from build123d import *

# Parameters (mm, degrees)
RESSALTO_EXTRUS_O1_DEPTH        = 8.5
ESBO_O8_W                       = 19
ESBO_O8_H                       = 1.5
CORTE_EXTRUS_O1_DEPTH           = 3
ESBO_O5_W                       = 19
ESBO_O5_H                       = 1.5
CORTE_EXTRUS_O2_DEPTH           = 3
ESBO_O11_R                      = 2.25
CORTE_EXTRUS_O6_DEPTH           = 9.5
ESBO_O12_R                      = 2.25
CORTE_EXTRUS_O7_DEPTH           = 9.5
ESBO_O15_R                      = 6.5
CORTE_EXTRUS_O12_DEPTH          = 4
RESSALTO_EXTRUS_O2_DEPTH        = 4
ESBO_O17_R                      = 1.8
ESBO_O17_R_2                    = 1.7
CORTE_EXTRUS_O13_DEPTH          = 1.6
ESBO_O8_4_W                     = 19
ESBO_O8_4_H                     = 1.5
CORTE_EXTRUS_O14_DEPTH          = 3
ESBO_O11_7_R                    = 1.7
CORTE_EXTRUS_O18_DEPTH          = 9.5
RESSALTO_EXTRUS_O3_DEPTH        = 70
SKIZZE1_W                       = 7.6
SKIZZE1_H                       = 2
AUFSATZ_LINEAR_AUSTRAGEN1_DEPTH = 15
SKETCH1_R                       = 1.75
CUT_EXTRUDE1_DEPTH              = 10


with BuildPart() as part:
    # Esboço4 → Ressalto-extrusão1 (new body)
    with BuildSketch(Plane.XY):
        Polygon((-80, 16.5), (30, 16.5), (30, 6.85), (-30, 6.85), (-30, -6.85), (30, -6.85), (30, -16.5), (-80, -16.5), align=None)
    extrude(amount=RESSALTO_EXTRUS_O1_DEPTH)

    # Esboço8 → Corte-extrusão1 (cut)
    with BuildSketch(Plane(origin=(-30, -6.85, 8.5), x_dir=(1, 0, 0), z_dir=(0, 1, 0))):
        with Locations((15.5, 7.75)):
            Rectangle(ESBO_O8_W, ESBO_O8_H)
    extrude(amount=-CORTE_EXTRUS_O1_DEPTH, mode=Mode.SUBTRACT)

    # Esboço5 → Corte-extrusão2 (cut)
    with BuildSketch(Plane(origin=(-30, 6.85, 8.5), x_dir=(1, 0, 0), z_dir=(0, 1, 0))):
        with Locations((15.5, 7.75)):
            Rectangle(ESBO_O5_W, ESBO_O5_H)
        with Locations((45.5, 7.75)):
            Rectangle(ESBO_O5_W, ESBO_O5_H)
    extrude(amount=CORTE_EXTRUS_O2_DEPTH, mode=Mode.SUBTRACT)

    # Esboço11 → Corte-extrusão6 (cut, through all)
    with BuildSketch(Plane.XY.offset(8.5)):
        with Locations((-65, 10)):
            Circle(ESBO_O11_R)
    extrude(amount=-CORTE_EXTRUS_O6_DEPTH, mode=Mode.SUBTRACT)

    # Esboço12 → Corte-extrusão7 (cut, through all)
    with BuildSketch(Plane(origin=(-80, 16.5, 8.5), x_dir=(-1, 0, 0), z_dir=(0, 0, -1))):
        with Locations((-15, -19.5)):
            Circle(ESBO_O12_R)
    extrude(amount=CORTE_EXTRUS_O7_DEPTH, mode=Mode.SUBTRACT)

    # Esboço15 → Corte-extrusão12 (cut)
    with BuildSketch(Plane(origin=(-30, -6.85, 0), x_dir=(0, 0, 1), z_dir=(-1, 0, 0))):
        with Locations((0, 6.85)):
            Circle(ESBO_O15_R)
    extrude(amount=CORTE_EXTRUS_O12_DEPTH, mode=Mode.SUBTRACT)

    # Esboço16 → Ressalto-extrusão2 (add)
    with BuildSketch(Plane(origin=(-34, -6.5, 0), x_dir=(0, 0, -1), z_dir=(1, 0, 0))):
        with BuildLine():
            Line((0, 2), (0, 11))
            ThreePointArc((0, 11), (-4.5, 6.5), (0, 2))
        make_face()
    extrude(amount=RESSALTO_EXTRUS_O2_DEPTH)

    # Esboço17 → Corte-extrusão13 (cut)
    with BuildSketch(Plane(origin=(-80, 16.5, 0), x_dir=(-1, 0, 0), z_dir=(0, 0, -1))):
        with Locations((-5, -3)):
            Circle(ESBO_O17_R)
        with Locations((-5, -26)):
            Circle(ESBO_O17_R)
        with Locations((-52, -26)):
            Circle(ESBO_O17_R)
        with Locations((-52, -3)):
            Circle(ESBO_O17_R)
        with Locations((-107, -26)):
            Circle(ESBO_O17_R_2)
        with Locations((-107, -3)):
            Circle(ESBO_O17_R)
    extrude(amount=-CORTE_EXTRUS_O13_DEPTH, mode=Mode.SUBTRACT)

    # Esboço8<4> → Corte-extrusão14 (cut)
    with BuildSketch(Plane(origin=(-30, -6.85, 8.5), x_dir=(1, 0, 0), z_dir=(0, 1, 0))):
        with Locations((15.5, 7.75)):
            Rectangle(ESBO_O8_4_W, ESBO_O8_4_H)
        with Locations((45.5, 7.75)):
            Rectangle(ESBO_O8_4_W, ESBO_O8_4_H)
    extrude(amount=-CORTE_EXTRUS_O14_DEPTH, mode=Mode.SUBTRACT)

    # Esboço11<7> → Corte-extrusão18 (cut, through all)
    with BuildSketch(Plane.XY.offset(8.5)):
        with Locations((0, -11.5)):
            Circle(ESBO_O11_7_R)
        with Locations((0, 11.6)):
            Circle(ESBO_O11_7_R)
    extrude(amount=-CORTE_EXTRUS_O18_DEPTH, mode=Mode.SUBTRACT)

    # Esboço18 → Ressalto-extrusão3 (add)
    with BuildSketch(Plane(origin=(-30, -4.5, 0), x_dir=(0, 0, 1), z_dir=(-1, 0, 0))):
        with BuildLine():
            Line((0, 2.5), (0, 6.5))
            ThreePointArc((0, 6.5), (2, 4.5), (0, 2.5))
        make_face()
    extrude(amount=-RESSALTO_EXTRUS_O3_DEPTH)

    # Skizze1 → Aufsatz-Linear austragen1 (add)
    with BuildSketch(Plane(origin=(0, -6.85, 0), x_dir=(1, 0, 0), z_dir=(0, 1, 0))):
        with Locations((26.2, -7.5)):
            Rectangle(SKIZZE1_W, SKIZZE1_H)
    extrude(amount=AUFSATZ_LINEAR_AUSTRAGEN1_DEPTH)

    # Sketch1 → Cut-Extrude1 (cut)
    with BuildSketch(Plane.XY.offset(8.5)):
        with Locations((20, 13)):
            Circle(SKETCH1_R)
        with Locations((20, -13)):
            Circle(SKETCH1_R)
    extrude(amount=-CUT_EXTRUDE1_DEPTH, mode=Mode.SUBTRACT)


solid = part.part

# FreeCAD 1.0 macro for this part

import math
import FreeCAD as App
import Part
import Sketcher

V = App.Vector

doc = App.newDocument("Part")
body = doc.addObject("PartDesign::Body", "Body")

# Sketch on XY plane
sketch1 = body.newObject("Sketcher::SketchObject", "Sketch")
sketch1.AttachmentSupport = (doc.getObject("XY_Plane"), [""])
sketch1.MapMode = "FlatFace"
sketch1.addGeometry(Part.LineSegment(V(30, 16, 0), V(-80, 16, 0)), False)
sketch1.addGeometry(Part.LineSegment(V(-80, 16, 0), V(-80, -16, 0)), False)
sketch1.addGeometry(Part.LineSegment(V(-80, -16, 0), V(30, -16, 0)), False)
sketch1.addGeometry(Part.LineSegment(V(30, -16, 0), V(30, -7, 0)), False)
sketch1.addGeometry(Part.LineSegment(V(30, -7, 0), V(-30, -7, 0)), False)
sketch1.addGeometry(Part.LineSegment(V(-30, -7, 0), V(-30, 7, 0)), False)
sketch1.addGeometry(Part.LineSegment(V(-30, 7, 0), V(30, 7, 0)), False)
sketch1.addGeometry(Part.LineSegment(V(30, 7, 0), V(30, 16, 0)), False)
sketch1.addConstraint(Sketcher.Constraint("Coincident", 0, 2, 1, 1))
sketch1.addConstraint(Sketcher.Constraint("Coincident", 1, 2, 2, 1))
sketch1.addConstraint(Sketcher.Constraint("Coincident", 2, 2, 3, 1))
sketch1.addConstraint(Sketcher.Constraint("Coincident", 3, 2, 4, 1))
sketch1.addConstraint(Sketcher.Constraint("Coincident", 4, 2, 5, 1))
sketch1.addConstraint(Sketcher.Constraint("Coincident", 5, 2, 6, 1))
sketch1.addConstraint(Sketcher.Constraint("Coincident", 6, 2, 7, 1))
sketch1.addConstraint(Sketcher.Constraint("Coincident", 7, 2, 0, 1))
sketch1.addConstraint(Sketcher.Constraint("Horizontal", 0))
sketch1.addConstraint(Sketcher.Constraint("Vertical", 1))
sketch1.addConstraint(Sketcher.Constraint("Horizontal", 2))
sketch1.addConstraint(Sketcher.Constraint("Vertical", 3))
sketch1.addConstraint(Sketcher.Constraint("Horizontal", 4))
sketch1.addConstraint(Sketcher.Constraint("Vertical", 5))
sketch1.addConstraint(Sketcher.Constraint("Horizontal", 6))
sketch1.addConstraint(Sketcher.Constraint("Vertical", 7))
sketch1.addConstraint(Sketcher.Constraint("Symmetric", 3, 2, 5, 2, -1, 1))
sketch1.addConstraint(Sketcher.Constraint("Symmetric", 2, 2, 7, 2, -1))
sketch1.addConstraint(Sketcher.Constraint("DistanceX", 0, 2, 0, 1, 110.0))
sketch1.addConstraint(Sketcher.Constraint("DistanceX", 4, 2, 4, 1, 60.0))
sketch1.addConstraint(Sketcher.Constraint("DistanceY", 1, 2, 1, 1, 33.0))
sketch1.addConstraint(Sketcher.Constraint("DistanceY", 5, 1, 5, 2, 13.7))
pad1 = body.newObject("PartDesign::Pad", "Pad")
pad1.Profile = sketch1
pad1.Length = 8.5

# Sketch on XZ plane
sketch2 = body.newObject("Sketcher::SketchObject", "Sketch001")
sketch2.AttachmentSupport = (doc.getObject("XZ_Plane"), [""])
sketch2.MapMode = "FlatFace"
sketch2.AttachmentOffset = App.Placement(V(0, 0, 6.85), App.Rotation())
sketch2.addGeometry(Part.LineSegment(V(-24, 0, 0), V(-24, 1.5, 0)), False)
sketch2.addGeometry(Part.LineSegment(V(-24, 1.5, 0), V(-5, 1.5, 0)), False)
sketch2.addGeometry(Part.LineSegment(V(-5, 1.5, 0), V(-5, 0, 0)), False)
sketch2.addGeometry(Part.LineSegment(V(-5, 0, 0), V(-24, 0, 0)), False)
sketch2.addConstraint(Sketcher.Constraint("Coincident", 0, 2, 1, 1))
sketch2.addConstraint(Sketcher.Constraint("Coincident", 1, 2, 2, 1))
sketch2.addConstraint(Sketcher.Constraint("Coincident", 2, 2, 3, 1))
sketch2.addConstraint(Sketcher.Constraint("Coincident", 3, 2, 0, 1))
sketch2.addConstraint(Sketcher.Constraint("Vertical", 0))
sketch2.addConstraint(Sketcher.Constraint("Horizontal", 1))
sketch2.addConstraint(Sketcher.Constraint("Vertical", 2))
sketch2.addConstraint(Sketcher.Constraint("Horizontal", 3))
sketch2.addConstraint(Sketcher.Constraint("PointOnObject", 2, 2, -1))
sketch2.addConstraint(Sketcher.Constraint("DistanceX", 1, 1, 1, 2, 19.0))
sketch2.addConstraint(Sketcher.Constraint("DistanceY", 0, 1, 0, 2, 1.5))
sketch2.addConstraint(Sketcher.Constraint("DistanceX", 0, 2, -1, 1, 24.0))
pocket1 = body.newObject("PartDesign::Pocket", "Pocket")
pocket1.Profile = sketch2
pocket1.Length = 3
pocket1.Reversed = True

# Sketch on XZ plane
sketch3 = body.newObject("Sketcher::SketchObject", "Sketch002")
sketch3.AttachmentSupport = (doc.getObject("XZ_Plane"), [""])
sketch3.MapMode = "FlatFace"
sketch3.AttachmentOffset = App.Placement(V(0, 0, -6.85), App.Rotation())
sketch3.addGeometry(Part.LineSegment(V(-24, 0, 0), V(-24, 1.5, 0)), False)
sketch3.addGeometry(Part.LineSegment(V(-24, 1.5, 0), V(-5, 1.5, 0)), False)
sketch3.addGeometry(Part.LineSegment(V(-5, 1.5, 0), V(-5, 0, 0)), False)
sketch3.addGeometry(Part.LineSegment(V(-5, 0, 0), V(-24, 0, 0)), False)
sketch3.addGeometry(Part.LineSegment(V(6, 0, 0), V(6, 1.5, 0)), False)
sketch3.addGeometry(Part.LineSegment(V(6, 1.5, 0), V(25, 1.5, 0)), False)
sketch3.addGeometry(Part.LineSegment(V(25, 1.5, 0), V(25, 0, 0)), False)
sketch3.addGeometry(Part.LineSegment(V(25, 0, 0), V(6, 0, 0)), False)
sketch3.addConstraint(Sketcher.Constraint("Coincident", 0, 2, 1, 1))
sketch3.addConstraint(Sketcher.Constraint("Coincident", 1, 2, 2, 1))
sketch3.addConstraint(Sketcher.Constraint("Coincident", 2, 2, 3, 1))
sketch3.addConstraint(Sketcher.Constraint("Coincident", 3, 2, 0, 1))
sketch3.addConstraint(Sketcher.Constraint("Coincident", 4, 2, 5, 1))
sketch3.addConstraint(Sketcher.Constraint("Coincident", 5, 2, 6, 1))
sketch3.addConstraint(Sketcher.Constraint("Coincident", 6, 2, 7, 1))
sketch3.addConstraint(Sketcher.Constraint("Coincident", 7, 2, 4, 1))
sketch3.addConstraint(Sketcher.Constraint("Vertical", 0))
sketch3.addConstraint(Sketcher.Constraint("Horizontal", 1))
sketch3.addConstraint(Sketcher.Constraint("Vertical", 2))
sketch3.addConstraint(Sketcher.Constraint("Horizontal", 3))
sketch3.addConstraint(Sketcher.Constraint("Vertical", 4))
sketch3.addConstraint(Sketcher.Constraint("Horizontal", 5))
sketch3.addConstraint(Sketcher.Constraint("Vertical", 6))
sketch3.addConstraint(Sketcher.Constraint("Horizontal", 7))
sketch3.addConstraint(Sketcher.Constraint("PointOnObject", 2, 2, -1))
sketch3.addConstraint(Sketcher.Constraint("PointOnObject", 6, 2, -1))
sketch3.addConstraint(Sketcher.Constraint("Horizontal", 1, 2, 4, 2))
sketch3.addConstraint(Sketcher.Constraint("Equal", 3, 5))
sketch3.addConstraint(Sketcher.Constraint("DistanceX", 1, 1, 1, 2, 19.0))
sketch3.addConstraint(Sketcher.Constraint("DistanceY", 0, 1, 0, 2, 1.5))
sketch3.addConstraint(Sketcher.Constraint("DistanceX", 0, 2, -1, 1, 24.0))
sketch3.addConstraint(Sketcher.Constraint("DistanceX", -1, 1, 4, 2, 6.0))
pocket2 = body.newObject("PartDesign::Pocket", "Pocket001")
pocket2.Profile = sketch3
pocket2.Length = 3

# Sketch on XY plane
sketch4 = body.newObject("Sketcher::SketchObject", "Sketch003")
sketch4.AttachmentSupport = (doc.getObject("XY_Plane"), [""])
sketch4.MapMode = "FlatFace"
sketch4.AttachmentOffset = App.Placement(V(0, 0, 8.5), App.Rotation())
sketch4.addGeometry(Part.Circle(V(-65, 10, 0), V(0, 0, 1), 2.2), False)
sketch4.addConstraint(Sketcher.Constraint("Diameter", 0, 4.5))
sketch4.addConstraint(Sketcher.Constraint("DistanceX", 0, 3, -1, 1, 65.0))
sketch4.addConstraint(Sketcher.Constraint("DistanceY", -1, 1, 0, 3, 10.0))
pocket3 = body.newObject("PartDesign::Pocket", "Pocket002")
pocket3.Profile = sketch4
pocket3.Type = "ThroughAll"

# Sketch on XY plane
sketch5 = body.newObject("Sketcher::SketchObject", "Sketch004")
sketch5.AttachmentSupport = (doc.getObject("XY_Plane"), [""])
sketch5.MapMode = "FlatFace"
sketch5.AttachmentOffset = App.Placement(V(0, 0, 8.5), App.Rotation())
sketch5.addGeometry(Part.Circle(V(-65, -3, 0), V(0, 0, 1), 2.2), False)
sketch5.addConstraint(Sketcher.Constraint("Diameter", 0, 4.5))
sketch5.addConstraint(Sketcher.Constraint("DistanceX", 0, 3, -1, 1, 65.0))
sketch5.addConstraint(Sketcher.Constraint("DistanceY", 0, 3, -1, 1, 3.0))
pocket4 = body.newObject("PartDesign::Pocket", "Pocket003")
pocket4.Profile = sketch5
pocket4.Type = "ThroughAll"

# Sketch on YZ plane
sketch6 = body.newObject("Sketcher::SketchObject", "Sketch005")
sketch6.AttachmentSupport = (doc.getObject("YZ_Plane"), [""])
sketch6.MapMode = "FlatFace"
sketch6.AttachmentOffset = App.Placement(V(0, 0, -30), App.Rotation())
sketch6.addGeometry(Part.Circle(V(0, 0, 0), V(0, 0, 1), 6), False)
sketch6.addConstraint(Sketcher.Constraint("Coincident", 0, 3, -1, 1))
sketch6.addConstraint(Sketcher.Constraint("Diameter", 0, 13.0))
pocket5 = body.newObject("PartDesign::Pocket", "Pocket004")
pocket5.Profile = sketch6
pocket5.Length = 4

# Sketch on YZ plane
sketch7 = body.newObject("Sketcher::SketchObject", "Sketch006")
sketch7.AttachmentSupport = (doc.getObject("YZ_Plane"), [""])
sketch7.MapMode = "FlatFace"
sketch7.AttachmentOffset = App.Placement(V(0, 0, -34), App.Rotation())
sketch7.addGeometry(Part.LineSegment(V(-4.5, 0, 0), V(4.5, 0, 0)), False)
sketch7.addGeometry(Part.ArcOfCircle(Part.Circle(V(0, 0, 0), V(0, 0, 1), 4.5), math.radians(0), math.radians(180)), False)
sketch7.addConstraint(Sketcher.Constraint("Coincident", 0, 1, 1, 2))
sketch7.addConstraint(Sketcher.Constraint("Coincident", 1, 1, 0, 2))
sketch7.addConstraint(Sketcher.Constraint("Horizontal", 0))
sketch7.addConstraint(Sketcher.Constraint("Coincident", 1, 3, -1, 1))
sketch7.addConstraint(Sketcher.Constraint("PointOnObject", 0, 1, -1))
sketch7.addConstraint(Sketcher.Constraint("Radius", 1, 4.5))
pad2 = body.newObject("PartDesign::Pad", "Pad001")
pad2.Profile = sketch7
pad2.Length = 4

# Sketch on XY plane
sketch8 = body.newObject("Sketcher::SketchObject", "Sketch007")
sketch8.AttachmentSupport = (doc.getObject("XY_Plane"), [""])
sketch8.MapMode = "FlatFace"
sketch8.addGeometry(Part.Circle(V(-75, 13.5, 0), V(0, 0, 1), 1.8), False)
sketch8.addGeometry(Part.Circle(V(-75, -9.5, 0), V(0, 0, 1), 1.8), False)
sketch8.addGeometry(Part.Circle(V(-28, -9.5, 0), V(0, 0, 1), 1.8), False)
sketch8.addGeometry(Part.Circle(V(-28, 13.5, 0), V(0, 0, 1), 1.8), False)
sketch8.addGeometry(Part.Circle(V(27, -9.5, 0), V(0, 0, 1), 1.7), False)
sketch8.addGeometry(Part.Circle(V(27, 13.5, 0), V(0, 0, 1), 1.8), False)
sketch8.addConstraint(Sketcher.Constraint("Equal", 0, 1))
sketch8.addConstraint(Sketcher.Constraint("Equal", 1, 2))
sketch8.addConstraint(Sketcher.Constraint("Equal", 2, 3))
sketch8.addConstraint(Sketcher.Constraint("Equal", 3, 5))
sketch8.addConstraint(Sketcher.Constraint("Horizontal", 1, 3, 2, 3))
sketch8.addConstraint(Sketcher.Constraint("Horizontal", 0, 3, 3, 3))
sketch8.addConstraint(Sketcher.Constraint("Horizontal", 2, 3, 4, 3))
sketch8.addConstraint(Sketcher.Constraint("Horizontal", 3, 3, 5, 3))
sketch8.addConstraint(Sketcher.Constraint("Vertical", 0, 3, 1, 3))
sketch8.addConstraint(Sketcher.Constraint("Vertical", 2, 3, 3, 3))
sketch8.addConstraint(Sketcher.Constraint("Vertical", 4, 3, 5, 3))
sketch8.addConstraint(Sketcher.Constraint("Diameter", 0, 3.6))
sketch8.addConstraint(Sketcher.Constraint("Diameter", 4, 3.4))
sketch8.addConstraint(Sketcher.Constraint("DistanceX", 0, 3, -1, 1, 75.0))
sketch8.addConstraint(Sketcher.Constraint("DistanceX", 2, 3, -1, 1, 28.0))
sketch8.addConstraint(Sketcher.Constraint("DistanceX", -1, 1, 4, 3, 27.0))
sketch8.addConstraint(Sketcher.Constraint("DistanceY", 1, 3, 0, 3, 23.0))
sketch8.addConstraint(Sketcher.Constraint("DistanceY", -1, 1, 0, 3, 13.5))
pocket6 = body.newObject("PartDesign::Pocket", "Pocket005")
pocket6.Profile = sketch8
pocket6.Length = 1.6
pocket6.Reversed = True

# Sketch on XZ plane
sketch9 = body.newObject("Sketcher::SketchObject", "Sketch008")
sketch9.AttachmentSupport = (doc.getObject("XZ_Plane"), [""])
sketch9.MapMode = "FlatFace"
sketch9.AttachmentOffset = App.Placement(V(0, 0, 6.85), App.Rotation())
sketch9.addGeometry(Part.LineSegment(V(-24, 0, 0), V(-24, 1.5, 0)), False)
sketch9.addGeometry(Part.LineSegment(V(-24, 1.5, 0), V(-5, 1.5, 0)), False)
sketch9.addGeometry(Part.LineSegment(V(-5, 1.5, 0), V(-5, 0, 0)), False)
sketch9.addGeometry(Part.LineSegment(V(-5, 0, 0), V(-24, 0, 0)), False)
sketch9.addGeometry(Part.LineSegment(V(6, 0, 0), V(6, 1.5, 0)), False)
sketch9.addGeometry(Part.LineSegment(V(6, 1.5, 0), V(25, 1.5, 0)), False)
sketch9.addGeometry(Part.LineSegment(V(25, 1.5, 0), V(25, 0, 0)), False)
sketch9.addGeometry(Part.LineSegment(V(25, 0, 0), V(6, 0, 0)), False)
sketch9.addConstraint(Sketcher.Constraint("Coincident", 0, 2, 1, 1))
sketch9.addConstraint(Sketcher.Constraint("Coincident", 1, 2, 2, 1))
sketch9.addConstraint(Sketcher.Constraint("Coincident", 2, 2, 3, 1))
sketch9.addConstraint(Sketcher.Constraint("Coincident", 3, 2, 0, 1))
sketch9.addConstraint(Sketcher.Constraint("Coincident", 4, 2, 5, 1))
sketch9.addConstraint(Sketcher.Constraint("Coincident", 5, 2, 6, 1))
sketch9.addConstraint(Sketcher.Constraint("Coincident", 6, 2, 7, 1))
sketch9.addConstraint(Sketcher.Constraint("Coincident", 7, 2, 4, 1))
sketch9.addConstraint(Sketcher.Constraint("Vertical", 0))
sketch9.addConstraint(Sketcher.Constraint("Horizontal", 1))
sketch9.addConstraint(Sketcher.Constraint("Vertical", 2))
sketch9.addConstraint(Sketcher.Constraint("Horizontal", 3))
sketch9.addConstraint(Sketcher.Constraint("Vertical", 4))
sketch9.addConstraint(Sketcher.Constraint("Horizontal", 5))
sketch9.addConstraint(Sketcher.Constraint("Vertical", 6))
sketch9.addConstraint(Sketcher.Constraint("Horizontal", 7))
sketch9.addConstraint(Sketcher.Constraint("PointOnObject", 2, 2, -1))
sketch9.addConstraint(Sketcher.Constraint("PointOnObject", 6, 2, -1))
sketch9.addConstraint(Sketcher.Constraint("Horizontal", 1, 2, 4, 2))
sketch9.addConstraint(Sketcher.Constraint("Equal", 3, 5))
sketch9.addConstraint(Sketcher.Constraint("DistanceX", 1, 1, 1, 2, 19.0))
sketch9.addConstraint(Sketcher.Constraint("DistanceY", 0, 1, 0, 2, 1.5))
sketch9.addConstraint(Sketcher.Constraint("DistanceX", 0, 2, -1, 1, 24.0))
sketch9.addConstraint(Sketcher.Constraint("DistanceX", -1, 1, 4, 2, 6.0))
pocket7 = body.newObject("PartDesign::Pocket", "Pocket006")
pocket7.Profile = sketch9
pocket7.Length = 3
pocket7.Reversed = True

# Sketch on XY plane
sketch10 = body.newObject("Sketcher::SketchObject", "Sketch009")
sketch10.AttachmentSupport = (doc.getObject("XY_Plane"), [""])
sketch10.MapMode = "FlatFace"
sketch10.AttachmentOffset = App.Placement(V(0, 0, 8.5), App.Rotation())
sketch10.addGeometry(Part.Circle(V(0, -11.5, 0), V(0, 0, 1), 1.7), False)
sketch10.addGeometry(Part.Circle(V(0, 11.6, 0), V(0, 0, 1), 1.7), False)
sketch10.addConstraint(Sketcher.Constraint("Equal", 0, 1))
sketch10.addConstraint(Sketcher.Constraint("PointOnObject", 0, 3, -2))
sketch10.addConstraint(Sketcher.Constraint("PointOnObject", 1, 3, -2))
sketch10.addConstraint(Sketcher.Constraint("Diameter", 0, 3.4))
sketch10.addConstraint(Sketcher.Constraint("DistanceY", 0, 3, -1, 1, 11.5))
sketch10.addConstraint(Sketcher.Constraint("DistanceY", -1, 1, 1, 3, 11.6))
pocket8 = body.newObject("PartDesign::Pocket", "Pocket007")
pocket8.Profile = sketch10
pocket8.Type = "ThroughAll"

# Sketch on YZ plane
sketch11 = body.newObject("Sketcher::SketchObject", "Sketch010")
sketch11.AttachmentSupport = (doc.getObject("YZ_Plane"), [""])
sketch11.MapMode = "FlatFace"
sketch11.AttachmentOffset = App.Placement(V(0, 0, -30), App.Rotation())
sketch11.addGeometry(Part.LineSegment(V(2, 0, 0), V(-2, 0, 0)), False)
sketch11.addGeometry(Part.ArcOfCircle(Part.Circle(V(0, 0, 0), V(0, 0, 1), 2), math.radians(0), math.radians(180)), False)
sketch11.addConstraint(Sketcher.Constraint("Coincident", 0, 1, 1, 1))
sketch11.addConstraint(Sketcher.Constraint("Coincident", 1, 2, 0, 2))
sketch11.addConstraint(Sketcher.Constraint("Horizontal", 0))
sketch11.addConstraint(Sketcher.Constraint("Coincident", 1, 3, -1, 1))
sketch11.addConstraint(Sketcher.Constraint("PointOnObject", 0, 1, -1))
sketch11.addConstraint(Sketcher.Constraint("Radius", 1, 2.0))
pad3 = body.newObject("PartDesign::Pad", "Pad002")
pad3.Profile = sketch11
pad3.Length = 70

# Sketch on XZ plane
sketch12 = body.newObject("Sketcher::SketchObject", "Sketch011")
sketch12.AttachmentSupport = (doc.getObject("XZ_Plane"), [""])
sketch12.MapMode = "FlatFace"
sketch12.AttachmentOffset = App.Placement(V(0, 0, 6.85), App.Rotation())
sketch12.addGeometry(Part.LineSegment(V(22.4, 6.5, 0), V(22.4, 8.5, 0)), False)
sketch12.addGeometry(Part.LineSegment(V(22.4, 8.5, 0), V(30, 8.5, 0)), False)
sketch12.addGeometry(Part.LineSegment(V(30, 8.5, 0), V(30, 6.5, 0)), False)
sketch12.addGeometry(Part.LineSegment(V(30, 6.5, 0), V(22.4, 6.5, 0)), False)
sketch12.addConstraint(Sketcher.Constraint("Coincident", 0, 2, 1, 1))
sketch12.addConstraint(Sketcher.Constraint("Coincident", 1, 2, 2, 1))
sketch12.addConstraint(Sketcher.Constraint("Coincident", 2, 2, 3, 1))
sketch12.addConstraint(Sketcher.Constraint("Coincident", 3, 2, 0, 1))
sketch12.addConstraint(Sketcher.Constraint("Vertical", 0))
sketch12.addConstraint(Sketcher.Constraint("Horizontal", 1))
sketch12.addConstraint(Sketcher.Constraint("Vertical", 2))
sketch12.addConstraint(Sketcher.Constraint("Horizontal", 3))
sketch12.addConstraint(Sketcher.Constraint("DistanceY", 0, 1, 0, 2, 2.0))
sketch12.addConstraint(Sketcher.Constraint("DistanceX", 1, 1, 1, 2, 7.6))
sketch12.addConstraint(Sketcher.Constraint("DistanceX", -1, 1, 1, 2, 30.0))
sketch12.addConstraint(Sketcher.Constraint("DistanceY", -1, 1, 0, 2, 8.5))
pad4 = body.newObject("PartDesign::Pad", "Pad003")
pad4.Profile = sketch12
pad4.Length = 15
pad4.Reversed = True

# Sketch on XY plane
sketch13 = body.newObject("Sketcher::SketchObject", "Sketch012")
sketch13.AttachmentSupport = (doc.getObject("XY_Plane"), [""])
sketch13.MapMode = "FlatFace"
sketch13.AttachmentOffset = App.Placement(V(0, 0, 8.5), App.Rotation())
sketch13.addGeometry(Part.Circle(V(20, 13, 0), V(0, 0, 1), 1.8), False)
sketch13.addGeometry(Part.Circle(V(20, -13, 0), V(0, 0, 1), 1.8), False)
sketch13.addConstraint(Sketcher.Constraint("Equal", 0, 1))
sketch13.addConstraint(Sketcher.Constraint("Symmetric", 0, 3, 1, 3, -1))
sketch13.addConstraint(Sketcher.Constraint("Diameter", 0, 3.5))
sketch13.addConstraint(Sketcher.Constraint("DistanceX", -1, 1, 0, 3, 20.0))
sketch13.addConstraint(Sketcher.Constraint("DistanceY", -1, 1, 0, 3, 13.0))
pocket9 = body.newObject("PartDesign::Pocket", "Pocket008")
pocket9.Profile = sketch13
pocket9.Length = 10

doc.recompute()
